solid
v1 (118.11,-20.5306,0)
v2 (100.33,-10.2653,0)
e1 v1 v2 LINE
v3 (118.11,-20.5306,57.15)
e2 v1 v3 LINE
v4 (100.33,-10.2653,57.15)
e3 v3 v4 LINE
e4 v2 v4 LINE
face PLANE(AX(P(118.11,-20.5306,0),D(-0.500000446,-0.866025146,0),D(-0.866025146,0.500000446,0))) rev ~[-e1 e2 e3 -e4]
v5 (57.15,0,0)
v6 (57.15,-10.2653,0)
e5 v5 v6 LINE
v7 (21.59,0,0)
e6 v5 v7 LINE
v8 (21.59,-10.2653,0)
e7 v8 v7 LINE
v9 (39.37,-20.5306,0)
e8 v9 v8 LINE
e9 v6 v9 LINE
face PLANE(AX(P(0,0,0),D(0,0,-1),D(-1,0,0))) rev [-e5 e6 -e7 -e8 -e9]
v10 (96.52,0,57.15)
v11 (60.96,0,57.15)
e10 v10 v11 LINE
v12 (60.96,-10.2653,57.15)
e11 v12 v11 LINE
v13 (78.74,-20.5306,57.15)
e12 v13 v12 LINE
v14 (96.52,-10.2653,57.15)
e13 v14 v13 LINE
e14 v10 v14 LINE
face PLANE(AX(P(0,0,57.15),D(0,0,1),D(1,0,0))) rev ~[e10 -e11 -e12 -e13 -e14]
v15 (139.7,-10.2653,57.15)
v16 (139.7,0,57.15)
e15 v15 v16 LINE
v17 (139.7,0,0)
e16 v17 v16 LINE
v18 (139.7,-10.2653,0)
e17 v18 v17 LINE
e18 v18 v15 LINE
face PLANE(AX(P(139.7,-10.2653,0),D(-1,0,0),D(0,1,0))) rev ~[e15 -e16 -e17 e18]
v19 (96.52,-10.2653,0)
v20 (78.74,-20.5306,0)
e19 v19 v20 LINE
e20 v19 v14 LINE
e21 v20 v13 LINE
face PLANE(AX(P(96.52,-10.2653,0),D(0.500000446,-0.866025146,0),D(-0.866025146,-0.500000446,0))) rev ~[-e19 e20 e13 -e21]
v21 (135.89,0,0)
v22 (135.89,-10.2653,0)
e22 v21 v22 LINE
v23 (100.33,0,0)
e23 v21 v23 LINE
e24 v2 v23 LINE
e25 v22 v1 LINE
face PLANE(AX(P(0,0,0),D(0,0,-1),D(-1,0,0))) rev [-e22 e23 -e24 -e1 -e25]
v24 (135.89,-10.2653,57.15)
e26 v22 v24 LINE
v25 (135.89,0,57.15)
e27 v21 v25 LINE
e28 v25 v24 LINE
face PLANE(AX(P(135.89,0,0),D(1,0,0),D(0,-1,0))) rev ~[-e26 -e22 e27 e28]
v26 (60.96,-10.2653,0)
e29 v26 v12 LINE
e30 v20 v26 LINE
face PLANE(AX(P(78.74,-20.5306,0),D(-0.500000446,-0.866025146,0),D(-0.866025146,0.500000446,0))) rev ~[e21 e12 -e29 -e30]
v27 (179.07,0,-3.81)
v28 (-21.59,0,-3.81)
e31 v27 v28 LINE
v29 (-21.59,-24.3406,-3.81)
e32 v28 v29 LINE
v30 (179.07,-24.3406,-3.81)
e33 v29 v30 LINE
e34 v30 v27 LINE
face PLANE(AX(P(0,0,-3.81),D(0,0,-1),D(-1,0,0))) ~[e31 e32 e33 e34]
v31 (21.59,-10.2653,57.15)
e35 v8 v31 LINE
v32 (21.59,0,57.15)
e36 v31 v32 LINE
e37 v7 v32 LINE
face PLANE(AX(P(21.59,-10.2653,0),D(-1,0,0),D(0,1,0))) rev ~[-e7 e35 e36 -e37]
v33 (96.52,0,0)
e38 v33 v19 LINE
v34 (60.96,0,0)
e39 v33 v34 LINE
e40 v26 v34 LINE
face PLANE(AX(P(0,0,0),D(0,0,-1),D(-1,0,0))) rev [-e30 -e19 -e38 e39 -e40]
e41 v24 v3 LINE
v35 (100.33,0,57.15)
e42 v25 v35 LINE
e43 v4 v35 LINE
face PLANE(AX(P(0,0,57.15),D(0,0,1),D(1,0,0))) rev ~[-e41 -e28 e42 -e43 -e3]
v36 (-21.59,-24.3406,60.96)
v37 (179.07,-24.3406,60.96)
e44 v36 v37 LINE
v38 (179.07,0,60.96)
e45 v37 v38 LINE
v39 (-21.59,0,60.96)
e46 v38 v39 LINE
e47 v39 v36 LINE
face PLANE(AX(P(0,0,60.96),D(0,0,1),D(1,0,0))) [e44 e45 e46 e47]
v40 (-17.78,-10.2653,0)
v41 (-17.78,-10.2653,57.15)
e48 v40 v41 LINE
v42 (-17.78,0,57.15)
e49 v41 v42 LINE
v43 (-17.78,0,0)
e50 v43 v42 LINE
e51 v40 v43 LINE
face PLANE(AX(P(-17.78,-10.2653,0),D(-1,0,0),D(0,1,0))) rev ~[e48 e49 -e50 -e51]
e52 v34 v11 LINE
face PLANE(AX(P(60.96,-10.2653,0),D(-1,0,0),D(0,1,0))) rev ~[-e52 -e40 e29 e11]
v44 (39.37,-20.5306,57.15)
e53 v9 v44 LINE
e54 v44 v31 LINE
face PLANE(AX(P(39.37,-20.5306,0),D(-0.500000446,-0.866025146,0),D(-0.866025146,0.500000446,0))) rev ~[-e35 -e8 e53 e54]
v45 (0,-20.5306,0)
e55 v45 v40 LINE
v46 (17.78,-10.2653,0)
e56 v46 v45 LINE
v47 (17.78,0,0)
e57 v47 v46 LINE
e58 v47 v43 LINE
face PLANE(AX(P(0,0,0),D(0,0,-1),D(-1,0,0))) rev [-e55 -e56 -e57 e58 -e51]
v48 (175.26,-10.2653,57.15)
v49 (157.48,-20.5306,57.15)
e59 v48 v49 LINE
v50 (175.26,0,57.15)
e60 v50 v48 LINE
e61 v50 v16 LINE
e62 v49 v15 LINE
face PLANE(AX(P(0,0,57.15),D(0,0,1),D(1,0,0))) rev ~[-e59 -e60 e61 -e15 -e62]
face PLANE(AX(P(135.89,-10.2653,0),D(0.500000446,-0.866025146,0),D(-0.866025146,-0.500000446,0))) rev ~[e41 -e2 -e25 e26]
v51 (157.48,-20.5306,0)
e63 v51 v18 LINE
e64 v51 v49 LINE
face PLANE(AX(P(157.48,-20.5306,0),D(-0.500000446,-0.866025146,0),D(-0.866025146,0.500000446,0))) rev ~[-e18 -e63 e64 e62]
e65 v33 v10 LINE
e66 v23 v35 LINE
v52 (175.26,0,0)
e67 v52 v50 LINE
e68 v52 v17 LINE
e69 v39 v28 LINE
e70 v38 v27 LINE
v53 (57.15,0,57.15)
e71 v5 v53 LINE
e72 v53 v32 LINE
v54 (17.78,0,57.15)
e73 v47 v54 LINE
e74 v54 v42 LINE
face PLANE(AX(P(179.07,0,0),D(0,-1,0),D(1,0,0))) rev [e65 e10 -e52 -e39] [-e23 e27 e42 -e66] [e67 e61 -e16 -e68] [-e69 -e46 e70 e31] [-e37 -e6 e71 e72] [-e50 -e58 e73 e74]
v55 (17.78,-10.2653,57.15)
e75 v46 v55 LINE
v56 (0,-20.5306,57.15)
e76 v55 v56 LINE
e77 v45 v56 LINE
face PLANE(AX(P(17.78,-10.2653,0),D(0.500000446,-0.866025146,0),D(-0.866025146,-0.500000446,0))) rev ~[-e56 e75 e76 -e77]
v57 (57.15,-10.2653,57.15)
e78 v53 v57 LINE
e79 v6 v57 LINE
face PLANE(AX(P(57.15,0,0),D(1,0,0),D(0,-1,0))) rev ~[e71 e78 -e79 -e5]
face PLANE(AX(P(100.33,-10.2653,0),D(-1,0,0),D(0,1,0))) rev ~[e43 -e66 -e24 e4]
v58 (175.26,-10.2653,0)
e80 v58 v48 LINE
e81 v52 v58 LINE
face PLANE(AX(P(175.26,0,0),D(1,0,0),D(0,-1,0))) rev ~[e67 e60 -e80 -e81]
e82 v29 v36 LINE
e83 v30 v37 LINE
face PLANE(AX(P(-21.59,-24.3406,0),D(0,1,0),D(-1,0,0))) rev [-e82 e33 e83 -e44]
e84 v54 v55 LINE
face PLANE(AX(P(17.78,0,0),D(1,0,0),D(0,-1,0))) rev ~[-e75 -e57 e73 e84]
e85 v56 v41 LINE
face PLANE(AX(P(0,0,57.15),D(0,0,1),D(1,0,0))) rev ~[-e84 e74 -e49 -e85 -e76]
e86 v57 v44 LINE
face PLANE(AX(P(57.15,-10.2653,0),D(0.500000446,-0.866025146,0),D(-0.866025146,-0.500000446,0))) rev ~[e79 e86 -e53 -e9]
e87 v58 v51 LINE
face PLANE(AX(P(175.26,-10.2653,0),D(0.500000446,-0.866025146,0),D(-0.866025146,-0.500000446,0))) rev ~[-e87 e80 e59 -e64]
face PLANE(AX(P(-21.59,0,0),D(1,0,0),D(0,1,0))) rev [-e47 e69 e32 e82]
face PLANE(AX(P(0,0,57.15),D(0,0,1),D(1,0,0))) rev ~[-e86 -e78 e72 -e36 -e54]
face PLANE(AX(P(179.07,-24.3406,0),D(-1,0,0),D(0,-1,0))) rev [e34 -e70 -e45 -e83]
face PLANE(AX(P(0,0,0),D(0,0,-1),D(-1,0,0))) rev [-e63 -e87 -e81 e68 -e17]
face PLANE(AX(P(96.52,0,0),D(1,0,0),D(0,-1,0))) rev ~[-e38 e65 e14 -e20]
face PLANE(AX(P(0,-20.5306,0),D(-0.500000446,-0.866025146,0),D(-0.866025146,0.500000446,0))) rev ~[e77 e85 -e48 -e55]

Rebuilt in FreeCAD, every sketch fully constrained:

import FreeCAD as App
import Part
import Sketcher
Q = App.Units.Quantity

doc = App.newDocument("Part")
body = doc.addObject("PartDesign::Body", "Body")

# Sketch on XY plane
sketch1 = body.newObject("Sketcher::SketchObject", "Sketch")
sketch1.AttachmentSupport = (doc.getObject("XY_Plane"), [""])
sketch1.MapMode = "FlatFace"
sketch1.addGeometry([
    Part.LineSegment(App.Vector(17.8, 0, 0), App.Vector(17.8, -10.3, 0)),  # 0
    Part.LineSegment(App.Vector(17.8, -10.3, 0), App.Vector(0, -20.5, 0)),  # 1
    Part.LineSegment(App.Vector(0, -20.5, 0), App.Vector(-17.8, -10.3, 0)),  # 2
    Part.LineSegment(App.Vector(-17.8, -10.3, 0), App.Vector(-17.8, 0, 0)),  # 3
    Part.LineSegment(App.Vector(-17.8, 0, 0), App.Vector(-21.6, 0, 0)),  # 4
    Part.LineSegment(App.Vector(-21.6, 0, 0), App.Vector(-21.6, -24.3, 0)),  # 5
    Part.LineSegment(App.Vector(-21.6, -24.3, 0), App.Vector(179.1, -24.3, 0)),  # 6
    Part.LineSegment(App.Vector(179.1, -24.3, 0), App.Vector(179.1, 0, 0)),  # 7
    Part.LineSegment(App.Vector(179.1, 0, 0), App.Vector(175.3, 0, 0)),  # 8
    Part.LineSegment(App.Vector(175.3, 0, 0), App.Vector(175.3, -10.3, 0)),  # 9
    Part.LineSegment(App.Vector(175.3, -10.3, 0), App.Vector(157.5, -20.5, 0)),  # 10
    Part.LineSegment(App.Vector(157.5, -20.5, 0), App.Vector(139.7, -10.3, 0)),  # 11
    Part.LineSegment(App.Vector(139.7, -10.3, 0), App.Vector(139.7, 0, 0)),  # 12
    Part.LineSegment(App.Vector(139.7, 0, 0), App.Vector(135.9, 0, 0)),  # 13
    Part.LineSegment(App.Vector(135.9, 0, 0), App.Vector(135.9, -10.3, 0)),  # 14
    Part.LineSegment(App.Vector(135.9, -10.3, 0), App.Vector(118.1, -20.5, 0)),  # 15
    Part.LineSegment(App.Vector(118.1, -20.5, 0), App.Vector(100.3, -10.3, 0)),  # 16
    Part.LineSegment(App.Vector(100.3, -10.3, 0), App.Vector(100.3, 0, 0)),  # 17
    Part.LineSegment(App.Vector(100.3, 0, 0), App.Vector(96.5, 0, 0)),  # 18
    Part.LineSegment(App.Vector(96.5, 0, 0), App.Vector(96.5, -10.3, 0)),  # 19
    Part.LineSegment(App.Vector(96.5, -10.3, 0), App.Vector(78.7, -20.5, 0)),  # 20
    Part.LineSegment(App.Vector(78.7, -20.5, 0), App.Vector(61, -10.3, 0)),  # 21
    Part.LineSegment(App.Vector(61, -10.3, 0), App.Vector(61, 0, 0)),  # 22
    Part.LineSegment(App.Vector(61, 0, 0), App.Vector(57.1, 0, 0)),  # 23
    Part.LineSegment(App.Vector(57.1, 0, 0), App.Vector(57.1, -10.3, 0)),  # 24
    Part.LineSegment(App.Vector(57.1, -10.3, 0), App.Vector(39.4, -20.5, 0)),  # 25
    Part.LineSegment(App.Vector(39.4, -20.5, 0), App.Vector(21.6, -10.3, 0)),  # 26
    Part.LineSegment(App.Vector(21.6, -10.3, 0), App.Vector(21.6, 0, 0)),  # 27
    Part.LineSegment(App.Vector(21.6, 0, 0), App.Vector(17.8, 0, 0)),  # 28
], False)
sketch1.addConstraint([
    Sketcher.Constraint("Coincident", 0, 2, 1, 1),
    Sketcher.Constraint("Coincident", 1, 2, 2, 1),
    Sketcher.Constraint("Coincident", 2, 2, 3, 1),
    Sketcher.Constraint("Coincident", 3, 2, 4, 1),
    Sketcher.Constraint("Coincident", 4, 2, 5, 1),
    Sketcher.Constraint("Coincident", 5, 2, 6, 1),
    Sketcher.Constraint("Coincident", 6, 2, 7, 1),
    Sketcher.Constraint("Coincident", 7, 2, 8, 1),
    Sketcher.Constraint("Coincident", 8, 2, 9, 1),
    Sketcher.Constraint("Coincident", 9, 2, 10, 1),
    Sketcher.Constraint("Coincident", 10, 2, 11, 1),
    Sketcher.Constraint("Coincident", 11, 2, 12, 1),
    Sketcher.Constraint("Coincident", 12, 2, 13, 1),
    Sketcher.Constraint("Coincident", 13, 2, 14, 1),
    Sketcher.Constraint("Coincident", 14, 2, 15, 1),
    Sketcher.Constraint("Coincident", 15, 2, 16, 1),
    Sketcher.Constraint("Coincident", 16, 2, 17, 1),
    Sketcher.Constraint("Coincident", 17, 2, 18, 1),
    Sketcher.Constraint("Coincident", 18, 2, 19, 1),
    Sketcher.Constraint("Coincident", 19, 2, 20, 1),
    Sketcher.Constraint("Coincident", 20, 2, 21, 1),
    Sketcher.Constraint("Coincident", 21, 2, 22, 1),
    Sketcher.Constraint("Coincident", 22, 2, 23, 1),
    Sketcher.Constraint("Coincident", 23, 2, 24, 1),
    Sketcher.Constraint("Coincident", 24, 2, 25, 1),
    Sketcher.Constraint("Coincident", 25, 2, 26, 1),
    Sketcher.Constraint("Coincident", 26, 2, 27, 1),
    Sketcher.Constraint("Coincident", 27, 2, 28, 1),
    Sketcher.Constraint("Coincident", 28, 2, 0, 1),
    Sketcher.Constraint("Vertical", 0),
    Sketcher.Constraint("Vertical", 3),
    Sketcher.Constraint("Horizontal", 4),
    Sketcher.Constraint("Vertical", 5),
    Sketcher.Constraint("Horizontal", 6),
    Sketcher.Constraint("Vertical", 7),
    Sketcher.Constraint("Horizontal", 8),
    Sketcher.Constraint("Vertical", 9),
    Sketcher.Constraint("Vertical", 12),
    Sketcher.Constraint("Horizontal", 13),
    Sketcher.Constraint("Vertical", 14),
    Sketcher.Constraint("Vertical", 17),
    Sketcher.Constraint("Horizontal", 18),
    Sketcher.Constraint("Vertical", 19),
    Sketcher.Constraint("Vertical", 22),
    Sketcher.Constraint("Horizontal", 23),
    Sketcher.Constraint("Vertical", 24),
    Sketcher.Constraint("Vertical", 27),
    Sketcher.Constraint("Horizontal", 28),
    Sketcher.Constraint("Symmetric", 4, 2, 27, 2, -1, 1),
    Sketcher.Constraint("Symmetric", 0, 2, 2, 2, -2),
    Sketcher.Constraint("PointOnObject", 1, 2, -2),
    Sketcher.Constraint("PointOnObject", 3, 2, -1),
    Sketcher.Constraint("PointOnObject", 7, 2, -1),
    Sketcher.Constraint("PointOnObject", 12, 2, -1),
    Sketcher.Constraint("PointOnObject", 17, 2, -1),
    Sketcher.Constraint("PointOnObject", 22, 2, -1),
    Sketcher.Constraint("Parallel", 1, 10),
    Sketcher.Constraint("Parallel", 2, 11),
    Sketcher.Constraint("Parallel", 10, 15),
    Sketcher.Constraint("Parallel", 11, 16),
    Sketcher.Constraint("Parallel", 15, 20),
    Sketcher.Constraint("Parallel", 16, 21),
    Sketcher.Constraint("Parallel", 20, 25),
    Sketcher.Constraint("Parallel", 21, 26),
    Sketcher.Constraint("Horizontal", 2, 2, 9, 2),
    Sketcher.Constraint("Horizontal", 1, 2, 10, 2),
    Sketcher.Constraint("Horizontal", 9, 2, 11, 2),
    Sketcher.Constraint("Horizontal", 11, 2, 14, 2),
    Sketcher.Constraint("Horizontal", 10, 2, 15, 2),
    Sketcher.Constraint("Horizontal", 14, 2, 16, 2),
    Sketcher.Constraint("Horizontal", 16, 2, 19, 2),
    Sketcher.Constraint("Horizontal", 15, 2, 20, 2),
    Sketcher.Constraint("Horizontal", 19, 2, 21, 2),
    Sketcher.Constraint("Horizontal", 21, 2, 24, 2),
    Sketcher.Constraint("Horizontal", 20, 2, 25, 2),
    Sketcher.Constraint("Horizontal", 24, 2, 26, 2),
    Sketcher.Constraint("Equal", 4, 8),
    Sketcher.Constraint("Equal", 8, 13),
    Sketcher.Constraint("Equal", 13, 18),
    Sketcher.Constraint("Equal", 18, 23),
    Sketcher.Constraint("DistanceX", 4, 2, 4, 1, Q("0.15 in")),
    Sketcher.Constraint("DistanceX", 2, 2, 0, 2, Q("1.4 in")),
    Sketcher.Constraint("DistanceY", 5, 2, 1, 2, Q("0.15 in")),
    Sketcher.Constraint("Angle", 1, Q("-150 deg")),
    Sketcher.Constraint("DistanceY", 5, 2, 5, 1, Q("0.9583 in")),
])
pad1 = body.newObject("PartDesign::Pad", "Pad")
pad1.Profile = sketch1
pad1.Length = Q("2.25 in")

# Sketch on XY plane
sketch2 = body.newObject("Sketcher::SketchObject", "Sketch001")
sketch2.AttachmentSupport = (doc.getObject("XY_Plane"), [""])
sketch2.MapMode = "FlatFace"
sketch2.AttachmentOffset = App.Placement(App.Vector(0, 0, 2.25 * 25.4), App.Rotation())
sketch2.addGeometry([
    Part.LineSegment(App.Vector(-22, 0, 0), App.Vector(-22, -24, 0)),
    Part.LineSegment(App.Vector(-22, -24, 0), App.Vector(179, -24, 0)),
    Part.LineSegment(App.Vector(179, -24, 0), App.Vector(179, 0, 0)),
    Part.LineSegment(App.Vector(179, 0, 0), App.Vector(-22, 0, 0)),
], False)
sketch2.addConstraint([
    Sketcher.Constraint("Coincident", 0, 2, 1, 1),
    Sketcher.Constraint("Coincident", 1, 2, 2, 1),
    Sketcher.Constraint("Coincident", 2, 2, 3, 1),
    Sketcher.Constraint("Coincident", 3, 2, 0, 1),
    Sketcher.Constraint("Vertical", 0),
    Sketcher.Constraint("Horizontal", 1),
    Sketcher.Constraint("Vertical", 2),
    Sketcher.Constraint("Horizontal", 3),
    Sketcher.Constraint("PointOnObject", 2, 2, -1),
    Sketcher.Constraint("DistanceX", 1, 1, 1, 2, Q("7.9 in")),
    Sketcher.Constraint("DistanceX", 0, 2, -1, 1, Q("0.85 in")),
    Sketcher.Constraint("DistanceY", 0, 2, 0, 1, Q("0.9583 in")),
])
pad2 = body.newObject("PartDesign::Pad", "Pad001")
pad2.Profile = sketch2
pad2.Length = Q("0.15 in")
doc.recompute()

datumplane = body.newObject("PartDesign::Plane", "DatumPlane")
datumplane.AttachmentSupport = (doc.getObject("XY_Plane"), [""])
datumplane.MapMode = "FlatFace"
datumplane.AttachmentOffset = App.Placement(App.Vector(0, 0, 1.125 * 25.4), App.Rotation())
mirrored = body.newObject("PartDesign::Mirrored", "Mirrored")
mirrored.Originals = [pad2]
mirrored.MirrorPlane = (datumplane, [""])
body.Tip = mirrored

doc.recompute()
